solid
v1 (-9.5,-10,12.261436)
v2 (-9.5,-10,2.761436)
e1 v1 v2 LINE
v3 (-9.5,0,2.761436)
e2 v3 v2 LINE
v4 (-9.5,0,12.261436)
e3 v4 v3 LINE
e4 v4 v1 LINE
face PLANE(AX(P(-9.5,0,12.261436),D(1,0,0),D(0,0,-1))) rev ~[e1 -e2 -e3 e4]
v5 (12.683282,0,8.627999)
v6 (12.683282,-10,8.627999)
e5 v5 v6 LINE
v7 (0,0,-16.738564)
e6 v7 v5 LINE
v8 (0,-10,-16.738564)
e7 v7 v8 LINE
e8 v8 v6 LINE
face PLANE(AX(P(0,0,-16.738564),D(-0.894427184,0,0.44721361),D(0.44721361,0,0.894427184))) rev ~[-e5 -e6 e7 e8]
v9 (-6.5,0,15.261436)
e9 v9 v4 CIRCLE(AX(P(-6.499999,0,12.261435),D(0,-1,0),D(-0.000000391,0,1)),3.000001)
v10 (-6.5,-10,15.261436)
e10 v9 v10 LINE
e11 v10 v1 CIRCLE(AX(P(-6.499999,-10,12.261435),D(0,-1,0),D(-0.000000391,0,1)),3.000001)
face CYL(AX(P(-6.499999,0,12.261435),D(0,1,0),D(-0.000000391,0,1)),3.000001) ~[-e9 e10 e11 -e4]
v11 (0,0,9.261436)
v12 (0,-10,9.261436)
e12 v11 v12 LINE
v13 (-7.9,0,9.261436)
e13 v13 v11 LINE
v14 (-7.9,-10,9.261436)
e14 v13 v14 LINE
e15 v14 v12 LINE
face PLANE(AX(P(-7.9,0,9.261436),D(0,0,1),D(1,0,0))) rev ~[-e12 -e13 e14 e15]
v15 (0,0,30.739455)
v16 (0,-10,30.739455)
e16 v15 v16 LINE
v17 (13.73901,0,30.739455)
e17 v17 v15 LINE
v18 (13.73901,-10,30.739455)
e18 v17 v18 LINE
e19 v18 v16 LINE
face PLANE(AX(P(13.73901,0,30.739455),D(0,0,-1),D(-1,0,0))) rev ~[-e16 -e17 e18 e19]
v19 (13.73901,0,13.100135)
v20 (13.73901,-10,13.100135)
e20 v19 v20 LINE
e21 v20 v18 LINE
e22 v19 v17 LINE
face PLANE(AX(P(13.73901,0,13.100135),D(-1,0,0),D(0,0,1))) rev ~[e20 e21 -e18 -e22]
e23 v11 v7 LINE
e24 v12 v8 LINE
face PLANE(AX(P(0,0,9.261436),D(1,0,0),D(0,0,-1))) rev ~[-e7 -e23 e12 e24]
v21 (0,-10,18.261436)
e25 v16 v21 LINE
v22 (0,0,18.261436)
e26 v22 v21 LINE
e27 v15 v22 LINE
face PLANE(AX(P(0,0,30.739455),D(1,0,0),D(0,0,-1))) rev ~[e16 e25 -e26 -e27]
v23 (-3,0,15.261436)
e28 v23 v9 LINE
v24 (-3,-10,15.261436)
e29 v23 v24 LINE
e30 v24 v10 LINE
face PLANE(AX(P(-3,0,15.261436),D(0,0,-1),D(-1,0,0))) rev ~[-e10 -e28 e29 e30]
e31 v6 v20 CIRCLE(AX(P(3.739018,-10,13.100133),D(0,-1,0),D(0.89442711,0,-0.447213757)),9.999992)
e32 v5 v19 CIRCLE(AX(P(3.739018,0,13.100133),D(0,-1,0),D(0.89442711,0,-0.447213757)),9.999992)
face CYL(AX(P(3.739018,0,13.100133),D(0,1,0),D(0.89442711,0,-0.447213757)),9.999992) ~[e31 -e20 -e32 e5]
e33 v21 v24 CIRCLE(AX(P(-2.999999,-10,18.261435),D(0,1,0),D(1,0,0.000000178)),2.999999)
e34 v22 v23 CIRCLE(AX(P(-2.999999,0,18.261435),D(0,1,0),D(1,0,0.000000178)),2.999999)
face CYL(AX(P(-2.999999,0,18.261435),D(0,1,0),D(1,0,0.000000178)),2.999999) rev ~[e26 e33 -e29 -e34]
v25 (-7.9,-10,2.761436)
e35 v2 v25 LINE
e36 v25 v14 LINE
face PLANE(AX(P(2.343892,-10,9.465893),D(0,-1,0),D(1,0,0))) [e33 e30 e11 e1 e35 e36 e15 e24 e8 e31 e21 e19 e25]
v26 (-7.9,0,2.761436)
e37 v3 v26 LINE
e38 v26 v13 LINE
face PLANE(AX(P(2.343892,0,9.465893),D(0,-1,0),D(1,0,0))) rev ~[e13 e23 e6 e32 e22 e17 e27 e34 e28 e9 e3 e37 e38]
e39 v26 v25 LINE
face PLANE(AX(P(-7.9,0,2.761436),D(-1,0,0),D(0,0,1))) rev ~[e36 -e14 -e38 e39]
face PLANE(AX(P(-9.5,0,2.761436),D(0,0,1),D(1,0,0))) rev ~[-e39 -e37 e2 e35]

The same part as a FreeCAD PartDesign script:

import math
import FreeCAD as App
import Part
import Sketcher
from FreeCAD import Vector
Q = App.Units.Quantity

doc = App.newDocument("Part")
params = doc.addObject("Spreadsheet::Sheet", "Params")
for row, (alias, value) in enumerate([
    ("sketch1_radius", "2.999999 mm"),
    ("sketch1_height", "26 mm"),
    ("sketch1_width", "7.9 mm"),
    ("sketch1_width2", "3.5 mm"),
    ("sketch1_height2", "9.5 mm"),
    ("pad1_length", "10 mm"),
], start=1):
    params.set(f"A{row}", alias)
    params.set(f"B{row}", "=" + value)
    params.setAlias(f"B{row}", alias)

body = doc.addObject("PartDesign::Body", "Body")

# Sketch on XZ plane
sketch1 = body.newObject("Sketcher::SketchObject", "Sketch")
sketch1.AttachmentSupport = (doc.getObject("XZ_Plane"), [""])
sketch1.MapMode = "FlatFace"
sketch1.addGeometry([
    Part.LineSegment(Vector(-7.9, 9.3, 0), Vector(0, 9.3, 0)),  # 0
    Part.LineSegment(Vector(0, 9.3, 0), Vector(0, -16.7, 0)),  # 1
    Part.LineSegment(Vector(0, -16.7, 0), Vector(12.7, 8.6, 0)),  # 2
    Part.ArcOfCircle(Part.Circle(Vector(3.7, 13.1, 0), Vector(0, 0, 1), 10), math.radians(-27), math.radians(0)),  # 3
    Part.LineSegment(Vector(13.7, 13.1, 0), Vector(13.7, 30.7, 0)),  # 4
    Part.LineSegment(Vector(13.7, 30.7, 0), Vector(0, 30.7, 0)),  # 5
    Part.LineSegment(Vector(0, 30.7, 0), Vector(0, 18.3, 0)),  # 6
    Part.ArcOfCircle(Part.Circle(Vector(-3, 18.3, 0), Vector(0, 0, 1), 3), math.radians(-90), math.radians(0)),  # 7
    Part.LineSegment(Vector(-3, 15.3, 0), Vector(-6.5, 15.3, 0)),  # 8
    Part.ArcOfCircle(Part.Circle(Vector(-6.5, 12.3, 0), Vector(0, 0, 1), 3), math.radians(90), math.radians(180)),  # 9
    Part.LineSegment(Vector(-9.5, 12.3, 0), Vector(-9.5, 2.8, 0)),  # 10
    Part.LineSegment(Vector(-9.5, 2.8, 0), Vector(-7.9, 2.8, 0)),  # 11
    Part.LineSegment(Vector(-7.9, 2.8, 0), Vector(-7.9, 9.3, 0)),  # 12
], False)
sketch1.addConstraint([
    Sketcher.Constraint("Coincident", 0, 2, 1, 1),
    Sketcher.Constraint("Coincident", 1, 2, 2, 1),
    Sketcher.Constraint("Tangent", 2, 2, 3, 1),
    Sketcher.Constraint("Tangent", 3, 2, 4, 1),
    Sketcher.Constraint("Coincident", 4, 2, 5, 1),
    Sketcher.Constraint("Coincident", 5, 2, 6, 1),
    Sketcher.Constraint("Tangent", 6, 2, 7, 2),
    Sketcher.Constraint("Tangent", 7, 1, 8, 1),
    Sketcher.Constraint("Tangent", 8, 2, 9, 1),
    Sketcher.Constraint("Tangent", 9, 2, 10, 1),
    Sketcher.Constraint("Coincident", 10, 2, 11, 1),
    Sketcher.Constraint("Coincident", 11, 2, 12, 1),
    Sketcher.Constraint("Coincident", 12, 2, 0, 1),
    Sketcher.Constraint("Horizontal", 0),
    Sketcher.Constraint("Vertical", 1),
    Sketcher.Constraint("Vertical", 4),
    Sketcher.Constraint("Horizontal", 5),
    Sketcher.Constraint("Vertical", 6),
    Sketcher.Constraint("Horizontal", 8),
    Sketcher.Constraint("Vertical", 10),
    Sketcher.Constraint("Horizontal", 11),
    Sketcher.Constraint("Vertical", 12),
    Sketcher.Constraint("Equal", 7, 9),
    Sketcher.Constraint("PointOnObject", 0, 2, -2),
    Sketcher.Constraint("PointOnObject", 5, 2, -2),
    Sketcher.Constraint("Radius", 7, Q("2.999999 mm")),
    Sketcher.Constraint("DistanceY", 1, 2, 1, 1, Q("26 mm")),
    Sketcher.Constraint("DistanceX", 0, 1, 0, 2, Q("7.9 mm")),
    Sketcher.Constraint("DistanceX", 8, 2, 8, 1, Q("3.5 mm")),
    Sketcher.Constraint("DistanceY", 10, 2, 10, 1, Q("9.5 mm")),
    Sketcher.Constraint("DistanceY", 12, 1, 12, 2, Q("6.5 mm")),
    Sketcher.Constraint("Radius", 3, Q("9.999992 mm")),
    Sketcher.Constraint("DistanceY", -1, 1, 2, 2, Q("8.627999 mm")),
    Sketcher.Constraint("DistanceX", 5, 2, 5, 1, Q("13.73901 mm")),
    Sketcher.Constraint("DistanceY", 4, 1, 4, 2, Q("17.63932 mm")),
    Sketcher.Constraint("DistanceY", 6, 2, 6, 1, Q("12.478019 mm")),
])
sketch1.setExpression("Constraints[25]", "Params.sketch1_radius")
sketch1.setExpression("Constraints[26]", "Params.sketch1_height")
sketch1.setExpression("Constraints[27]", "Params.sketch1_width")
sketch1.setExpression("Constraints[28]", "Params.sketch1_width2")
sketch1.setExpression("Constraints[29]", "Params.sketch1_height2")
pad1 = body.newObject("PartDesign::Pad", "Pad")
pad1.Profile = sketch1
pad1.setExpression("Length", "Params.pad1_length")

doc.recompute()
